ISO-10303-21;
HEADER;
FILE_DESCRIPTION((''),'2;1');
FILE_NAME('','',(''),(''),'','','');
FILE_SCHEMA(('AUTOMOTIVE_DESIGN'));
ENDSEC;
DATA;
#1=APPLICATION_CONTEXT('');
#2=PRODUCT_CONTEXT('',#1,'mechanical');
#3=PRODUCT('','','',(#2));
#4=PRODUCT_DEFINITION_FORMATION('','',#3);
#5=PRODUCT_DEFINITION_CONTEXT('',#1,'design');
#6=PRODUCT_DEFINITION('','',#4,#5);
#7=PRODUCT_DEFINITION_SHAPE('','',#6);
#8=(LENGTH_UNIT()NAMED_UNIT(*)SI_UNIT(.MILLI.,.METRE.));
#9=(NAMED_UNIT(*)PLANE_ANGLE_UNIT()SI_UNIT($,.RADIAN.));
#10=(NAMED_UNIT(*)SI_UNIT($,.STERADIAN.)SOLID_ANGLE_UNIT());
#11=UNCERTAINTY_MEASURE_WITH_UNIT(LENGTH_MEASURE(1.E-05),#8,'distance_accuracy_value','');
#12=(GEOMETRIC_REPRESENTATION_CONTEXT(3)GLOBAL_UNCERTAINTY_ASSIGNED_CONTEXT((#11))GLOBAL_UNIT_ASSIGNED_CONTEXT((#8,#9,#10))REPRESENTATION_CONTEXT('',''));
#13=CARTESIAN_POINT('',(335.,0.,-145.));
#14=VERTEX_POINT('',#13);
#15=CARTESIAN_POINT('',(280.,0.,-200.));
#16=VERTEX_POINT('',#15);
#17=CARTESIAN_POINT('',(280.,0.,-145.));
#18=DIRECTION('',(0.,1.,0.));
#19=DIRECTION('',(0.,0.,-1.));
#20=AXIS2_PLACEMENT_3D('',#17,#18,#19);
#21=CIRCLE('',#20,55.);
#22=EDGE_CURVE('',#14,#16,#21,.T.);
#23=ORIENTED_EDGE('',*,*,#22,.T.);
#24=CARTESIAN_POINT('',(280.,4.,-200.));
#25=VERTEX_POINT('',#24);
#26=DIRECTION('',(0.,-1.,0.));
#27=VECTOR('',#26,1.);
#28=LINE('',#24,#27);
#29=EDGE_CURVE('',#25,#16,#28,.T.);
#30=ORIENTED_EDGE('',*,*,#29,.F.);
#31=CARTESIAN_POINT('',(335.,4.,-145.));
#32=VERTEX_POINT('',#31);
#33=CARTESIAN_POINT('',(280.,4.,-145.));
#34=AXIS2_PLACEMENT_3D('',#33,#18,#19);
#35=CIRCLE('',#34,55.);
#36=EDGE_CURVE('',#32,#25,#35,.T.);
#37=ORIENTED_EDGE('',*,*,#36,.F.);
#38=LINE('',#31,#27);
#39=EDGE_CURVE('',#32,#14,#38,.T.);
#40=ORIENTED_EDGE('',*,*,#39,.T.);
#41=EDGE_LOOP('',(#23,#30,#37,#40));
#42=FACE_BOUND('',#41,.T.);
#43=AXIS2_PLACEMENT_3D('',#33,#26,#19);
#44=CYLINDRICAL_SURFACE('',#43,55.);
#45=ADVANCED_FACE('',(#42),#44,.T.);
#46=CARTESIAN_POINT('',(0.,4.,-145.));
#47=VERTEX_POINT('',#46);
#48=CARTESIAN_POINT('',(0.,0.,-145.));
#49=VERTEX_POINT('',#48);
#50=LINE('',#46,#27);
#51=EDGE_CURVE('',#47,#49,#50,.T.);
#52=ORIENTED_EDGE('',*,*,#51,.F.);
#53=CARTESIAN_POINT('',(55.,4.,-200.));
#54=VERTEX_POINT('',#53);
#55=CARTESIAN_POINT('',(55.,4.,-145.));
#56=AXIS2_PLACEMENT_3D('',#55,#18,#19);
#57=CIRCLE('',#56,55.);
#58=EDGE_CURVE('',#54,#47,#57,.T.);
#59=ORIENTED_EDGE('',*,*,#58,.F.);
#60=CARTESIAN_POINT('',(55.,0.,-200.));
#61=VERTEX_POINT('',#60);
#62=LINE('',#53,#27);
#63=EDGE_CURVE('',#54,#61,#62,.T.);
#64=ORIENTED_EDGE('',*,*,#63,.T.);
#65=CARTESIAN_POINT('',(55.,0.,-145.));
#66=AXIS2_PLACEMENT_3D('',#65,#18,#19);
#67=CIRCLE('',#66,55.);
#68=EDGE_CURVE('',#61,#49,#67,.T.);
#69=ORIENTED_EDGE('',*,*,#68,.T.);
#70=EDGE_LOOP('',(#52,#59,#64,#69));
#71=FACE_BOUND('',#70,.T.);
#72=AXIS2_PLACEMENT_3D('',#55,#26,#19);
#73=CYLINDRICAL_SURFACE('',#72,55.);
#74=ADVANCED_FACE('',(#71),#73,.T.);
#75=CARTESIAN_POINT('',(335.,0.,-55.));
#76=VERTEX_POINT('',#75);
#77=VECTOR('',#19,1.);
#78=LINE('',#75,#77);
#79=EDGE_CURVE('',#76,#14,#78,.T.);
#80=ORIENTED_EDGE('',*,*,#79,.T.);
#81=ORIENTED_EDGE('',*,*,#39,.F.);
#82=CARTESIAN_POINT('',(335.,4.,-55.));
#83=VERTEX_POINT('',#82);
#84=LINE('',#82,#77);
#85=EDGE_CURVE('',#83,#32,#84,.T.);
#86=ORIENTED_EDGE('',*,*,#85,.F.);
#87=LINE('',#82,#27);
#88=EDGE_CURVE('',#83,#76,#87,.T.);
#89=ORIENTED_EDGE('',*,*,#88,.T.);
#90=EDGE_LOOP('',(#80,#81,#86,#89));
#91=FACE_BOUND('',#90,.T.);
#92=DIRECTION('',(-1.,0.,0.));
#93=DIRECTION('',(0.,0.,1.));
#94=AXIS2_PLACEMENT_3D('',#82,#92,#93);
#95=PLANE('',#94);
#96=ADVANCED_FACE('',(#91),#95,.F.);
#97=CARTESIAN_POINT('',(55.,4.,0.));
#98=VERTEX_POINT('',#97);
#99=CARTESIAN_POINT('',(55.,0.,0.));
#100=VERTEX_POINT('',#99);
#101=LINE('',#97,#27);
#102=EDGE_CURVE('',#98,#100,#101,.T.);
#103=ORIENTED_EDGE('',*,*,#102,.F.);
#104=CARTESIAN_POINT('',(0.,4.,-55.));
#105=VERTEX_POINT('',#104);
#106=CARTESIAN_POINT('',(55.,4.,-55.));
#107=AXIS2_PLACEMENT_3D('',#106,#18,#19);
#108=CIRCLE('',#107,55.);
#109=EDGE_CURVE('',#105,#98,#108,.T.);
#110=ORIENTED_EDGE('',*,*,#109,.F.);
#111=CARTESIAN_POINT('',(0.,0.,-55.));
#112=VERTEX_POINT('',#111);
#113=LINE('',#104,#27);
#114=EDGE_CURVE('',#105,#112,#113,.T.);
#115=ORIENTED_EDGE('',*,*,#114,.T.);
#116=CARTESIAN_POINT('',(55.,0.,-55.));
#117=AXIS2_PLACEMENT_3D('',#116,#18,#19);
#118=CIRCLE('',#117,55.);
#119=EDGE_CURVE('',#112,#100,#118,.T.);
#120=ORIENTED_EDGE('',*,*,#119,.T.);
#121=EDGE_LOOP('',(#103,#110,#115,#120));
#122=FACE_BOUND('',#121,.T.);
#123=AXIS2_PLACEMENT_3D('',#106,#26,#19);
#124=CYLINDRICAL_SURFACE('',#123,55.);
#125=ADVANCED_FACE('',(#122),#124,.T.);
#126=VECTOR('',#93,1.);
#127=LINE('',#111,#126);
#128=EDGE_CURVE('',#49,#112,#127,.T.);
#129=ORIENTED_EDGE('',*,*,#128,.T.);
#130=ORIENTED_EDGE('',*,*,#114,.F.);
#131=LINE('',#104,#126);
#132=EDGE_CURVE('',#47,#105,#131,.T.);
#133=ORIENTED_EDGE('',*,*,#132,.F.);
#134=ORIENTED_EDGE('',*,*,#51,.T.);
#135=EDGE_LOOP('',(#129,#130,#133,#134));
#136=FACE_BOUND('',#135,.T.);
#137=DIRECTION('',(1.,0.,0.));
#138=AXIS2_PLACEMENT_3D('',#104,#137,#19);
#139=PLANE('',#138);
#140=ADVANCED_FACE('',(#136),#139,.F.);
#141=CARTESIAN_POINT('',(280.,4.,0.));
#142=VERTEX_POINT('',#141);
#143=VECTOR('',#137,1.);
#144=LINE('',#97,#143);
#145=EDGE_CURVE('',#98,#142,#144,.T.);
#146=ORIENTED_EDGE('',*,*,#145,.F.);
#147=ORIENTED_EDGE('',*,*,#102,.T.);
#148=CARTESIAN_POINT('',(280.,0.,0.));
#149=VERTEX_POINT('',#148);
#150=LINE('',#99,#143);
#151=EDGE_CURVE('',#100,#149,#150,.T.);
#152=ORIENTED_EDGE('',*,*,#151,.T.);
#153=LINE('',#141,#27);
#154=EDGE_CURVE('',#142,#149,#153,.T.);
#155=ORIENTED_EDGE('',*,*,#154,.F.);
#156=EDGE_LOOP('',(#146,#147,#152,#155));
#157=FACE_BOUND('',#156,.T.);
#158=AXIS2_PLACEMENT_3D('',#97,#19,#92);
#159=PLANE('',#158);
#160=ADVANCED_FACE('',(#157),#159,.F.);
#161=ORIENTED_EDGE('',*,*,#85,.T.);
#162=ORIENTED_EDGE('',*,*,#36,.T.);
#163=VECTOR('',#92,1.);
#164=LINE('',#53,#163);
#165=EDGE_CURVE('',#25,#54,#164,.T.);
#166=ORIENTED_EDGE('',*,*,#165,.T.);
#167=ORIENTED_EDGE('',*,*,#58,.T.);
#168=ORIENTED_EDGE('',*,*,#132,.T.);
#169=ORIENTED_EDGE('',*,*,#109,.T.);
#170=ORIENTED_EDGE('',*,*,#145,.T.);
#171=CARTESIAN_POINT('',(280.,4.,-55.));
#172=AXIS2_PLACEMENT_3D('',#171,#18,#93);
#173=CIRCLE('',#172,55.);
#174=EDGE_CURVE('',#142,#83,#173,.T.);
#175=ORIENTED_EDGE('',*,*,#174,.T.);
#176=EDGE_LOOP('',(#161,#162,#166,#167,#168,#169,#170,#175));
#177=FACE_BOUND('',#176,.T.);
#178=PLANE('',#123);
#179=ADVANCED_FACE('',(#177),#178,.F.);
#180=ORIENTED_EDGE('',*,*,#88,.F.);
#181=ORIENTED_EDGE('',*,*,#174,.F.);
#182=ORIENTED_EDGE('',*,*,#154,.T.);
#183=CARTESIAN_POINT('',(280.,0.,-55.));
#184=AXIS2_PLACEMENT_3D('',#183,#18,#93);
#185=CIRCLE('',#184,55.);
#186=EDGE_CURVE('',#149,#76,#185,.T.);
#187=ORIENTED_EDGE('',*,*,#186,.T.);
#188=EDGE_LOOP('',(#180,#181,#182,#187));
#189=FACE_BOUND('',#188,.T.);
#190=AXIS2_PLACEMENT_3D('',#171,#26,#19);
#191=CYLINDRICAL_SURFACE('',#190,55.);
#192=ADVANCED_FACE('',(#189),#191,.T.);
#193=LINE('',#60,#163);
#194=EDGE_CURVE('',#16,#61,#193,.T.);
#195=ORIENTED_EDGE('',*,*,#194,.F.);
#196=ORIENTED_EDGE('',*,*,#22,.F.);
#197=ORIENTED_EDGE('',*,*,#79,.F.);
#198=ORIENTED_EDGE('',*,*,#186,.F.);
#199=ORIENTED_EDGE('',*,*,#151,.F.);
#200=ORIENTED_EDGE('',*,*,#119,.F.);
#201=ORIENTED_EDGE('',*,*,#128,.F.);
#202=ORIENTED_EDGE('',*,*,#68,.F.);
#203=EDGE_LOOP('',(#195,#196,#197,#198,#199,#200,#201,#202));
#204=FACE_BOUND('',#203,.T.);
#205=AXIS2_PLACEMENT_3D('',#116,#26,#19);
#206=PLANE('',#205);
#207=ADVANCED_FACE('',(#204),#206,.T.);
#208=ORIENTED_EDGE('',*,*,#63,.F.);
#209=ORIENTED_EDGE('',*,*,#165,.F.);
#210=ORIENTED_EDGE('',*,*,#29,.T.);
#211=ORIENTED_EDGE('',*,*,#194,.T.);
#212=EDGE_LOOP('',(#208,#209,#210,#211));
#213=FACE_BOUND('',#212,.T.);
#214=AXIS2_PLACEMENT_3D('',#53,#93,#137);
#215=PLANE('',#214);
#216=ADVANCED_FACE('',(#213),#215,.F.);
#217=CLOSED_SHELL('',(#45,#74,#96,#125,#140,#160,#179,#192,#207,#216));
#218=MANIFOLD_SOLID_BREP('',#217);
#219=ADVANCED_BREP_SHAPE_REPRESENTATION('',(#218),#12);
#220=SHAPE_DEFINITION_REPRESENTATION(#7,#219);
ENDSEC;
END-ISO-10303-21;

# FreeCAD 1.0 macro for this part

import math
import FreeCAD as App
import Part
import Sketcher
from FreeCAD import Vector

doc = App.newDocument("Part")
params = doc.addObject("Spreadsheet::Sheet", "Params")
for row, (alias, value) in enumerate([
    ("sketch1_radius", "55 mm"),
    ("sketch1_width", "225 mm"),
    ("sketch1_height", "90 mm"),
    ("pad1_length", "4 mm"),
], start=1):
    params.set(f"A{row}", alias)
    params.set(f"B{row}", "=" + value)
    params.setAlias(f"B{row}", alias)

body = doc.addObject("PartDesign::Body", "Body")

# Sketch on XZ plane
sketch1 = doc.addObject("Sketcher::SketchObject", "Sketch")
body.addObject(sketch1)
sketch1.AttachmentSupport = (doc.XZ_Plane, [""])
sketch1.MapMode = "FlatFace"
sketch1.addGeometry(Part.LineSegment(Vector(55, 0, 0), Vector(280, 0, 0)), False)
sketch1.addGeometry(Part.ArcOfCircle(Part.Circle(Vector(280, -55, 0), Vector(0, 0, 1), 55), math.radians(0), math.radians(90)), False)
sketch1.addGeometry(Part.LineSegment(Vector(335, -55, 0), Vector(335, -145, 0)), False)
sketch1.addGeometry(Part.ArcOfCircle(Part.Circle(Vector(280, -145, 0), Vector(0, 0, 1), 55), math.radians(-90), math.radians(0)), False)
sketch1.addGeometry(Part.LineSegment(Vector(280, -200, 0), Vector(55, -200, 0)), False)
sketch1.addGeometry(Part.ArcOfCircle(Part.Circle(Vector(55, -145, 0), Vector(0, 0, 1), 55), math.radians(-180), math.radians(-90)), False)
sketch1.addGeometry(Part.LineSegment(Vector(0, -145, 0), Vector(0, -55, 0)), False)
sketch1.addGeometry(Part.ArcOfCircle(Part.Circle(Vector(55, -55, 0), Vector(0, 0, 1), 55), math.radians(90), math.radians(180)), False)
sketch1.addConstraint(Sketcher.Constraint("Tangent", 0, 2, 1, 2))
sketch1.addConstraint(Sketcher.Constraint("Tangent", 1, 1, 2, 1))
sketch1.addConstraint(Sketcher.Constraint("Tangent", 2, 2, 3, 2))
sketch1.addConstraint(Sketcher.Constraint("Tangent", 3, 1, 4, 1))
sketch1.addConstraint(Sketcher.Constraint("Tangent", 4, 2, 5, 2))
sketch1.addConstraint(Sketcher.Constraint("Tangent", 5, 1, 6, 1))
sketch1.addConstraint(Sketcher.Constraint("Tangent", 6, 2, 7, 2))
sketch1.addConstraint(Sketcher.Constraint("Tangent", 7, 1, 0, 1))
sketch1.addConstraint(Sketcher.Constraint("Horizontal", 0))
sketch1.addConstraint(Sketcher.Constraint("Vertical", 2))
sketch1.addConstraint(Sketcher.Constraint("Horizontal", 4))
sketch1.addConstraint(Sketcher.Constraint("Vertical", 6))
sketch1.addConstraint(Sketcher.Constraint("Equal", 1, 3))
sketch1.addConstraint(Sketcher.Constraint("Equal", 3, 5))
sketch1.addConstraint(Sketcher.Constraint("Equal", 5, 7))
sketch1.addConstraint(Sketcher.Constraint("PointOnObject", 0, 2, -1))
sketch1.addConstraint(Sketcher.Constraint("PointOnObject", 5, 1, -2))
sketch1.addConstraint(Sketcher.Constraint("Radius", 1, 55.0))
sketch1.addConstraint(Sketcher.Constraint("DistanceX", 0, 1, 0, 2, 225.0))
sketch1.addConstraint(Sketcher.Constraint("DistanceY", 2, 2, 2, 1, 90.0))
sketch1.setExpression("Constraints[17]", "Params.sketch1_radius")
sketch1.setExpression("Constraints[18]", "Params.sketch1_width")
sketch1.setExpression("Constraints[19]", "Params.sketch1_height")
pad1 = doc.addObject("PartDesign::Pad", "Pad")
body.addObject(pad1)
pad1.Profile = sketch1
pad1.setExpression("Length", "Params.pad1_length")
pad1.Reversed = True

doc.recompute()
